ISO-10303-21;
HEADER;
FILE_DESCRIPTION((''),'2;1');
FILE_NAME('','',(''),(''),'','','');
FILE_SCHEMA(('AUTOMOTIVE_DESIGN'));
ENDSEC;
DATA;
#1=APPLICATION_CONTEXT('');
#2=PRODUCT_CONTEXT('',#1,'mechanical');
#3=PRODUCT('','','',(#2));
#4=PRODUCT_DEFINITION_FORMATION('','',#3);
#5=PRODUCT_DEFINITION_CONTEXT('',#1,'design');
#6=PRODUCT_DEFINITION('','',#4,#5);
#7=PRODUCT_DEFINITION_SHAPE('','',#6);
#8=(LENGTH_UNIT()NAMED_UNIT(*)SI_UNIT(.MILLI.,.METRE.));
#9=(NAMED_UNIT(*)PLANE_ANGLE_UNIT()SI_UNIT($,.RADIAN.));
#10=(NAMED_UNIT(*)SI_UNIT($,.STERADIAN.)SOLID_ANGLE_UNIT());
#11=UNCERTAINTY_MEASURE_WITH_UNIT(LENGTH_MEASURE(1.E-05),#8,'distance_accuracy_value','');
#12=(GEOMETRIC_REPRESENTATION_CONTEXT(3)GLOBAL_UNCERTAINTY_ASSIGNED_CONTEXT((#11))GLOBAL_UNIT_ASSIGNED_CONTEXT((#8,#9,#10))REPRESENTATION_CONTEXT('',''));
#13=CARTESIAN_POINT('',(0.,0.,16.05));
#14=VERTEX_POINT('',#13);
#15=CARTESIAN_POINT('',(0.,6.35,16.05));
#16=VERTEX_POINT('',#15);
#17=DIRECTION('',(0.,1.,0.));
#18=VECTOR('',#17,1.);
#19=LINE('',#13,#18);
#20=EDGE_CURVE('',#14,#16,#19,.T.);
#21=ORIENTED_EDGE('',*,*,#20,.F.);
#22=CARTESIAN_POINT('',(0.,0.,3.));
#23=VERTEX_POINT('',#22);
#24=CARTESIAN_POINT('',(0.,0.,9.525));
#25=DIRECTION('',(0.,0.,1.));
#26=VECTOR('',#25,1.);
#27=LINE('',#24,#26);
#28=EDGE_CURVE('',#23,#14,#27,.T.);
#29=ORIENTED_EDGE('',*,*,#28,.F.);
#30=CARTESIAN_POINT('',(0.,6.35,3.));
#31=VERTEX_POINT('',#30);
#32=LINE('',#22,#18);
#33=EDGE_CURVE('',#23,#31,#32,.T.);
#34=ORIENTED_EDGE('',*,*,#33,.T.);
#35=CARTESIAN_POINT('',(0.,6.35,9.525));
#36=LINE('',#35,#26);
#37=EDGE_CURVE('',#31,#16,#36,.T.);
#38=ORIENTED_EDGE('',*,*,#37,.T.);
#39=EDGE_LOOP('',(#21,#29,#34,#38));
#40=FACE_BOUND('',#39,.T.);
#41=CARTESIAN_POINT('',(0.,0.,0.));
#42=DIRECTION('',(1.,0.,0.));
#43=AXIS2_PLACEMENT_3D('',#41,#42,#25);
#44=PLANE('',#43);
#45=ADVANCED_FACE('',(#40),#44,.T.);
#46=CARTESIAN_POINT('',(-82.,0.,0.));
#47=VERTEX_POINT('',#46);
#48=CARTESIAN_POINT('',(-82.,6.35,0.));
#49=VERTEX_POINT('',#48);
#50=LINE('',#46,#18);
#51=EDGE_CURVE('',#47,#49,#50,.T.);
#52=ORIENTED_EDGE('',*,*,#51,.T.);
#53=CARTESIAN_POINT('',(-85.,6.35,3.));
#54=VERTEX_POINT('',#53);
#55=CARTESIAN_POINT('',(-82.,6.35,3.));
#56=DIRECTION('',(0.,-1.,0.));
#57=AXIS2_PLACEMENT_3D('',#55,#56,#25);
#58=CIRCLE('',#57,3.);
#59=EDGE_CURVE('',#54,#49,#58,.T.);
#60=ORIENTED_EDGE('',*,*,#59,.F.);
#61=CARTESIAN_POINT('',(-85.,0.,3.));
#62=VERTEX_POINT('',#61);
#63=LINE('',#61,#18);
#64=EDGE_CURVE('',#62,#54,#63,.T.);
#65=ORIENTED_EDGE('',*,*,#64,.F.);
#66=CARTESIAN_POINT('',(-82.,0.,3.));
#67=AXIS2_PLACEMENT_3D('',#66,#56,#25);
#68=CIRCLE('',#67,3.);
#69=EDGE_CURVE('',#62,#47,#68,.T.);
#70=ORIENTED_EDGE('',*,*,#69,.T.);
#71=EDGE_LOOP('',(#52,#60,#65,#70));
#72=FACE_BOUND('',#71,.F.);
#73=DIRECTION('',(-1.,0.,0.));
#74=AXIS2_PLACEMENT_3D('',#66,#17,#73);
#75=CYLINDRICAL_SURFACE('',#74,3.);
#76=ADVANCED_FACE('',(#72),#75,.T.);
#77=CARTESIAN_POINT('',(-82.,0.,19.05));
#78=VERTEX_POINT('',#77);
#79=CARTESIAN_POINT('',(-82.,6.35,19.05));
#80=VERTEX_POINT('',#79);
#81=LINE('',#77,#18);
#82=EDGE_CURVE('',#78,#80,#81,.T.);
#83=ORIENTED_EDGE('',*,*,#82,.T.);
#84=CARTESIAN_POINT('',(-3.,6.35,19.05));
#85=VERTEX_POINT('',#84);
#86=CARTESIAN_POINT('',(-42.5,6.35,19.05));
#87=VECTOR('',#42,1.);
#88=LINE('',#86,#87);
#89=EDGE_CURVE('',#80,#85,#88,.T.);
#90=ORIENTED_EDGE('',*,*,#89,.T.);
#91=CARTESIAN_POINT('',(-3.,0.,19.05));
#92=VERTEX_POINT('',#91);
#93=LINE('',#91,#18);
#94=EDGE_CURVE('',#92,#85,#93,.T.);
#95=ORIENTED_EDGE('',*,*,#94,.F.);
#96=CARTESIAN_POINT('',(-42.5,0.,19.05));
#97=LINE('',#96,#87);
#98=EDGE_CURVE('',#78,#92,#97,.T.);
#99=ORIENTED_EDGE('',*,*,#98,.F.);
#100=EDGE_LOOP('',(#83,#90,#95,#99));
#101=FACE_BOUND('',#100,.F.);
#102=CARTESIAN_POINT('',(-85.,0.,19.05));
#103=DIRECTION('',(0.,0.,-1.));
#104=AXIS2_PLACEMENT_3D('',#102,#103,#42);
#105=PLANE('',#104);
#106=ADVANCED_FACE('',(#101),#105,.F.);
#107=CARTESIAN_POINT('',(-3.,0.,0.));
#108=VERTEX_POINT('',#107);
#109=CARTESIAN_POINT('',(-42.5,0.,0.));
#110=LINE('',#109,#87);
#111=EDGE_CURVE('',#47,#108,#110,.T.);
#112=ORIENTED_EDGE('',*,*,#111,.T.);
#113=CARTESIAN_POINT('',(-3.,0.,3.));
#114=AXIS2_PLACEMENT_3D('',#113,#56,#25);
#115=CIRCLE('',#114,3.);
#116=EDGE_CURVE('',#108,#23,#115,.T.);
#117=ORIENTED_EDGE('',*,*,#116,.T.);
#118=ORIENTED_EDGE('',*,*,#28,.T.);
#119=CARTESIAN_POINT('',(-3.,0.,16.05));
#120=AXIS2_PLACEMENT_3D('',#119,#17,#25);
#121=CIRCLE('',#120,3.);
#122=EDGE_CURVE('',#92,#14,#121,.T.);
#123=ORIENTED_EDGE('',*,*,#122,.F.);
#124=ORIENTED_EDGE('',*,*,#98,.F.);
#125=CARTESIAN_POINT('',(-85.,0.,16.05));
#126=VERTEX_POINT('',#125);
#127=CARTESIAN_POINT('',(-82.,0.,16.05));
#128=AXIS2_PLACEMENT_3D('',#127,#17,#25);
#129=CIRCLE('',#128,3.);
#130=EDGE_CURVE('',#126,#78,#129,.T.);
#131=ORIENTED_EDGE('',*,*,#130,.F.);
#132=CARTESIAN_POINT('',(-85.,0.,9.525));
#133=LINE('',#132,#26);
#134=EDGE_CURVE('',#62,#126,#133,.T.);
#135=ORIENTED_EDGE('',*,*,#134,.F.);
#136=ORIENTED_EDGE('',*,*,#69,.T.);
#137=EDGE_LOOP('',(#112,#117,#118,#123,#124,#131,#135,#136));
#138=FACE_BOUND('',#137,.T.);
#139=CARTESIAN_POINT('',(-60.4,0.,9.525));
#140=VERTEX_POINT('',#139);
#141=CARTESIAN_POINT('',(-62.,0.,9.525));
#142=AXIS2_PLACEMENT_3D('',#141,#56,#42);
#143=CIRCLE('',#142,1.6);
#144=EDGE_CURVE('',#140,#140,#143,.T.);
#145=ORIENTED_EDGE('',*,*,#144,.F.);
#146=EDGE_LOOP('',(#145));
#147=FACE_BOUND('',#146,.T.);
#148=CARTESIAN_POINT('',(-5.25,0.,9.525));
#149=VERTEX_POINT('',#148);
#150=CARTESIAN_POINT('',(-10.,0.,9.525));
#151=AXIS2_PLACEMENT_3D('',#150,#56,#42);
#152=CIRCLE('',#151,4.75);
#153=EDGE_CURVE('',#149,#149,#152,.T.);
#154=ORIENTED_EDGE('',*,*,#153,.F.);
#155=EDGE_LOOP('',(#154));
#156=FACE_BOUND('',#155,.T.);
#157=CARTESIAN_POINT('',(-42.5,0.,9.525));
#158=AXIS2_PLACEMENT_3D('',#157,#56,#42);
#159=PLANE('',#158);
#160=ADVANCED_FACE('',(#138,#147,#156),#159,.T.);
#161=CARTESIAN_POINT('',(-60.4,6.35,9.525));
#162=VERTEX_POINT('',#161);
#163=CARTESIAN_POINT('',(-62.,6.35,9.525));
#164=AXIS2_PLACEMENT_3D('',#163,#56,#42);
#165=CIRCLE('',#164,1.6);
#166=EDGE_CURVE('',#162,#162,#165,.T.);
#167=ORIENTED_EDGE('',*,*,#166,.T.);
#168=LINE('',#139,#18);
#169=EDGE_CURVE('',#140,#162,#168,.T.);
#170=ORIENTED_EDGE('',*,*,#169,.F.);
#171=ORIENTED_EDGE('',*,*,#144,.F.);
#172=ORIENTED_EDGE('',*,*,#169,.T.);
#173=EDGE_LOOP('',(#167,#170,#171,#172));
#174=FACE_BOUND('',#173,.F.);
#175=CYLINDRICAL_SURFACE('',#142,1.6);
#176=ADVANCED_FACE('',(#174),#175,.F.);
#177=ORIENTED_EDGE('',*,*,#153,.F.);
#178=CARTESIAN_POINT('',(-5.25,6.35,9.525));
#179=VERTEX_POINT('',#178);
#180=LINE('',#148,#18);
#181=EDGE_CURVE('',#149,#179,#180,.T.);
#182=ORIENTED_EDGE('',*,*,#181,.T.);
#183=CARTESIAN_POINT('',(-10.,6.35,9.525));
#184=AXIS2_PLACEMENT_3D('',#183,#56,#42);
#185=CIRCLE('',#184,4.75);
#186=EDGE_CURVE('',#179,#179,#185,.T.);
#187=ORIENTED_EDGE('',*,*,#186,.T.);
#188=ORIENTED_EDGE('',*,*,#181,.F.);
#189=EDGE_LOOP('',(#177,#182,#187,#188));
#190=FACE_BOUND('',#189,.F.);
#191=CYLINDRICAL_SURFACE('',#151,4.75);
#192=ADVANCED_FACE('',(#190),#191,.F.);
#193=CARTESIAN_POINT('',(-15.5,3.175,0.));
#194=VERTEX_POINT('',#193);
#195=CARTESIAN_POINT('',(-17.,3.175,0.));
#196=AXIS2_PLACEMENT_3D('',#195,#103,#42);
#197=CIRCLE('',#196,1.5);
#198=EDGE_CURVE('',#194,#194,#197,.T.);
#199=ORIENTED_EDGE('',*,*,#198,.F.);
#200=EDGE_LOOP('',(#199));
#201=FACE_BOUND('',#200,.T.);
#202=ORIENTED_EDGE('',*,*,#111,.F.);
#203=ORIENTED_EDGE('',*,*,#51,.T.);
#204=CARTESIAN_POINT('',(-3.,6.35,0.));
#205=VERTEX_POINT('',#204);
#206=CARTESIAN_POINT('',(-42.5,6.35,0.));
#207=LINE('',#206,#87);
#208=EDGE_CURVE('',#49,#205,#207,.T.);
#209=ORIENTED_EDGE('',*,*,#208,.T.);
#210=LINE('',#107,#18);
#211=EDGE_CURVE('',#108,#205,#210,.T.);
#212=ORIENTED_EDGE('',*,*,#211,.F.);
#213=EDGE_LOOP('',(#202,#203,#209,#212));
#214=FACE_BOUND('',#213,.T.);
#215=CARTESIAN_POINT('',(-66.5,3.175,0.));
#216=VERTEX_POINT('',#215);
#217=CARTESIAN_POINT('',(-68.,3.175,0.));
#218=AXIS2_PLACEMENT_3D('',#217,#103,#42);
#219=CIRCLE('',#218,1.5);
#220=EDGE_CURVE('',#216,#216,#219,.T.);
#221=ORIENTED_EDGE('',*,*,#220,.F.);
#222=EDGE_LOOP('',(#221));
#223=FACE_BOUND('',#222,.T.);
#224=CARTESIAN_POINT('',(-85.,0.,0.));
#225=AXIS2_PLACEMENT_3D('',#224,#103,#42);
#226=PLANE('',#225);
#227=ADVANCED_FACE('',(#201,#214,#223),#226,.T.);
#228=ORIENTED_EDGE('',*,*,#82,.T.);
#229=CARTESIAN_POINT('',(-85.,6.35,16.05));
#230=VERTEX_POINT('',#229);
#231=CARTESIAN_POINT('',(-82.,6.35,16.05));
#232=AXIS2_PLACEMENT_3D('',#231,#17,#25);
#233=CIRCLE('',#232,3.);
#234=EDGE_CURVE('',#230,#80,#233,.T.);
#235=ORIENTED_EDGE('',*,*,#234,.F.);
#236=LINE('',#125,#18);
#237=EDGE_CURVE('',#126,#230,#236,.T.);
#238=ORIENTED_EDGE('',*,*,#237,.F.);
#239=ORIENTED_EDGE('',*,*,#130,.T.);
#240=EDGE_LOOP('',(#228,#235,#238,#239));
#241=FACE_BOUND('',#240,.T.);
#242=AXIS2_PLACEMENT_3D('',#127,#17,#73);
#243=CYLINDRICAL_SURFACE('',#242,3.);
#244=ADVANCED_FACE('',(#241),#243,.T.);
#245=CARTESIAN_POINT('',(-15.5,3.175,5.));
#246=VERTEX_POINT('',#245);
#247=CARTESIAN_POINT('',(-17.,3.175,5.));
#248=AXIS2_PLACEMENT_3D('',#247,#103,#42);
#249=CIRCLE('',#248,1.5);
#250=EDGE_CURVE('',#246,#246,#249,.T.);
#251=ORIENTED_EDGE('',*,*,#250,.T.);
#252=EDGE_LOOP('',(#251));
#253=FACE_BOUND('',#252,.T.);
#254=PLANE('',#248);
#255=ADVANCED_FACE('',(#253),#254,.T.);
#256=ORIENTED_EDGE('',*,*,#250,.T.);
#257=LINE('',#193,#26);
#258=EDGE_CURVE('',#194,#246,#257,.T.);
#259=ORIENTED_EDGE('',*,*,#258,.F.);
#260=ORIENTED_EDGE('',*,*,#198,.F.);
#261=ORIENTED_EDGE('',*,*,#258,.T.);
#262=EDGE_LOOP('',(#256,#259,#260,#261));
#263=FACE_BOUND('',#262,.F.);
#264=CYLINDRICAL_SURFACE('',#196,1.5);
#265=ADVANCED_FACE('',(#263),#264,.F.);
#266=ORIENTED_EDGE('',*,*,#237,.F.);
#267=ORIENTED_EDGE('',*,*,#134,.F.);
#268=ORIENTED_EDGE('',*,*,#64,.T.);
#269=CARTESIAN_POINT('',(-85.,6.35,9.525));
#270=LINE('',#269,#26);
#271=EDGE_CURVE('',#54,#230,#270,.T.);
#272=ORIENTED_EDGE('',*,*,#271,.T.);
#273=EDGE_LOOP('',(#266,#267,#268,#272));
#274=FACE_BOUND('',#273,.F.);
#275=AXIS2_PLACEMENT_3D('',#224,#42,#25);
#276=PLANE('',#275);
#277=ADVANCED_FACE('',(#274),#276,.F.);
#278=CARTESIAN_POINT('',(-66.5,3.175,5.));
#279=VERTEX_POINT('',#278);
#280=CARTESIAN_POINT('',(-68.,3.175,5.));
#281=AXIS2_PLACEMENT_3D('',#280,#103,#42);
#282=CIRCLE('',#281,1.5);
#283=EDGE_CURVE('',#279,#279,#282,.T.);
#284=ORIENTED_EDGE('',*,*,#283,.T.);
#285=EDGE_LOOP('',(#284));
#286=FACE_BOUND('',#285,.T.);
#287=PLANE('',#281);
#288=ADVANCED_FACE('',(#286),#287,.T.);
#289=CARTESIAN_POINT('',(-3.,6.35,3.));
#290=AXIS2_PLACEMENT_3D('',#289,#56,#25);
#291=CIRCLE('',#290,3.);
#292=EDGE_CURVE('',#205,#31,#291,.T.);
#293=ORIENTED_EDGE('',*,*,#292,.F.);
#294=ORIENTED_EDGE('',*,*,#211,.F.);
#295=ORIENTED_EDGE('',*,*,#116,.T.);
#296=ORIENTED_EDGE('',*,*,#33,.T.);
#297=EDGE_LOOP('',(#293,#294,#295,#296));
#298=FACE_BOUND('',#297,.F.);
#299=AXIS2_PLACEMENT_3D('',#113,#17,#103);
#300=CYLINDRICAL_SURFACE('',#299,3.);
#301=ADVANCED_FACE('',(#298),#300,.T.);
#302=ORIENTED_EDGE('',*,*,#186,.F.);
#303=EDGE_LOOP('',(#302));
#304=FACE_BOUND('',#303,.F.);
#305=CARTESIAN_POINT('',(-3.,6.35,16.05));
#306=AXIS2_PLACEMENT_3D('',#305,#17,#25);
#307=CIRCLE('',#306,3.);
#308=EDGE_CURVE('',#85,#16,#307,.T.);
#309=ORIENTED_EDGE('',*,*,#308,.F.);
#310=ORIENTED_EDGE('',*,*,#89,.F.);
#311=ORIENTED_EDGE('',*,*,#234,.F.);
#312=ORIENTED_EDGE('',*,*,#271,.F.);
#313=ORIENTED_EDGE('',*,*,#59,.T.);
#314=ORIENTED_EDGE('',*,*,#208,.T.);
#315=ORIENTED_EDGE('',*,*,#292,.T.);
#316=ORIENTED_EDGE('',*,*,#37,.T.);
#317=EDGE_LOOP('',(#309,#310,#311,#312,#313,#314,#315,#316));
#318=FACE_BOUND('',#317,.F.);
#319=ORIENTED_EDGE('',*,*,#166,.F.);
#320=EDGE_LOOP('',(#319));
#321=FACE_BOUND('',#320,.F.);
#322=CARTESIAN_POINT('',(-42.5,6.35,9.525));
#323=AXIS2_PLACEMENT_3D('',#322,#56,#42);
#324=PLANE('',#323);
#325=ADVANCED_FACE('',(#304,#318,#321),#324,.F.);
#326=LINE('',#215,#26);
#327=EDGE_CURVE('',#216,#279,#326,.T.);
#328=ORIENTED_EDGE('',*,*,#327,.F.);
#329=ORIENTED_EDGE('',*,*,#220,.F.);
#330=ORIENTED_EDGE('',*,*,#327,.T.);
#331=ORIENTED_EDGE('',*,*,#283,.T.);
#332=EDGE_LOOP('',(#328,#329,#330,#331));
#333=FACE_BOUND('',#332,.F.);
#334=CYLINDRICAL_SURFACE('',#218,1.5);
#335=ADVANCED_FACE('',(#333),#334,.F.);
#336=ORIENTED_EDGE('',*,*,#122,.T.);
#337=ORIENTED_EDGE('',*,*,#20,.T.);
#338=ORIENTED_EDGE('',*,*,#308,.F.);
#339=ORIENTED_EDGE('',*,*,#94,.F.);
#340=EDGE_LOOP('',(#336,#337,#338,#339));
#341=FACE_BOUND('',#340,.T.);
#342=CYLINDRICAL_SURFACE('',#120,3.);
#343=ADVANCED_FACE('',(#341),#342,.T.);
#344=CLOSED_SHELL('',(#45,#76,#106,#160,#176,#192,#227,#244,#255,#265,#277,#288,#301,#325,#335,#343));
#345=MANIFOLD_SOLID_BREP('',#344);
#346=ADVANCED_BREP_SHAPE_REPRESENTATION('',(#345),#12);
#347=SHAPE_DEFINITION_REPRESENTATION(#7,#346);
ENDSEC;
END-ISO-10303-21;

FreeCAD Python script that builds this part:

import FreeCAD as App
import Part
import Sketcher
from FreeCAD import Vector


def edges_at(feature, points):
    """Names of the edges that pass closest to the given points."""
    edges = feature.Shape.Edges
    near = lambda p: min(range(len(edges)), key=lambda i: edges[i].distToShape(Part.Vertex(*p))[0])
    return sorted({f"Edge{near(p) + 1}" for p in points})

doc = App.newDocument("Part")
body = doc.addObject("PartDesign::Body", "Body")

sketch1 = body.newObject("Sketcher::SketchObject", "Sketch")
sketch1.AttachmentSupport = (doc.getObject("XZ_Plane"), [""])
sketch1.MapMode = "FlatFace"
sketch1.addGeometry(Part.LineSegment(Vector(-85, 19.1, 0), Vector(-85, 0, 0)), False)
sketch1.addGeometry(Part.LineSegment(Vector(-85, 0, 0), Vector(0, 0, 0)), False)
sketch1.addGeometry(Part.LineSegment(Vector(0, 0, 0), Vector(0, 19.1, 0)), False)
sketch1.addGeometry(Part.LineSegment(Vector(0, 19.1, 0), Vector(-85, 19.1, 0)), False)
sketch1.addGeometry(Part.Circle(Vector(-62, 9.5, 0), Vector(0, 0, 1), 1.6), False)
sketch1.addGeometry(Part.Circle(Vector(-10, 9.5, 0), Vector(0, 0, 1), 4.8), False)
sketch1.addConstraint(Sketcher.Constraint("Coincident", 0, 2, 1, 1))
sketch1.addConstraint(Sketcher.Constraint("Coincident", 1, 2, 2, 1))
sketch1.addConstraint(Sketcher.Constraint("Coincident", 2, 2, 3, 1))
sketch1.addConstraint(Sketcher.Constraint("Coincident", 3, 2, 0, 1))
sketch1.addConstraint(Sketcher.Constraint("Vertical", 0))
sketch1.addConstraint(Sketcher.Constraint("Horizontal", 1))
sketch1.addConstraint(Sketcher.Constraint("Vertical", 2))
sketch1.addConstraint(Sketcher.Constraint("Horizontal", 3))
sketch1.addConstraint(Sketcher.Constraint("Coincident", 1, 2, -1, 1))
sketch1.addConstraint(Sketcher.Constraint("Horizontal", 4, 3, 5, 3))
sketch1.addConstraint(Sketcher.Constraint("Diameter", 4, 3.2))
sketch1.addConstraint(Sketcher.Constraint("Diameter", 5, 9.5))
sketch1.addConstraint(Sketcher.Constraint("DistanceX", 1, 1, 1, 2, 85.0))
sketch1.addConstraint(Sketcher.Constraint("DistanceX", 4, 3, -1, 1, 62.0))
sketch1.addConstraint(Sketcher.Constraint("DistanceX", 5, 3, -1, 1, 10.0))
sketch1.addConstraint(Sketcher.Constraint("DistanceY", 0, 2, 0, 1, 19.05))
sketch1.addConstraint(Sketcher.Constraint("DistanceY", -1, 1, 4, 3, 9.525))
pad1 = body.newObject("PartDesign::Pad", "Pad")
pad1.Profile = sketch1
pad1.Length = 6.35
pad1.Reversed = True

sketch2 = body.newObject("Sketcher::SketchObject", "Sketch001")
sketch2.AttachmentSupport = (doc.getObject("XY_Plane"), [""])
sketch2.MapMode = "FlatFace"
sketch2.addGeometry(Part.Circle(Vector(-17, 3.2, 0), Vector(0, 0, 1), 1.5), False)
sketch2.addGeometry(Part.Circle(Vector(-68, 3.2, 0), Vector(0, 0, 1), 1.5), False)
sketch2.addConstraint(Sketcher.Constraint("Equal", 0, 1))
sketch2.addConstraint(Sketcher.Constraint("Horizontal", 0, 3, 1, 3))
sketch2.addConstraint(Sketcher.Constraint("Diameter", 0, 3.0))
sketch2.addConstraint(Sketcher.Constraint("DistanceX", 0, 3, -1, 1, 17.0))
sketch2.addConstraint(Sketcher.Constraint("DistanceX", 1, 3, -1, 1, 68.0))
sketch2.addConstraint(Sketcher.Constraint("DistanceY", -1, 1, 0, 3, 3.175))
pocket1 = body.newObject("PartDesign::Pocket", "Pocket")
pocket1.Profile = sketch2
pocket1.Length = 5
pocket1.Reversed = True
doc.recompute()

fillet = body.newObject("PartDesign::Fillet", "Fillet")
fillet.Base = (pocket1, edges_at(pocket1, [
    (-85, 3.175, 19.05),
    (-85, 3.175, 0),
    (0, 3.175, 0),
    (0, 3.175, 19.05),
]))
fillet.Radius = 3

doc.recompute()
